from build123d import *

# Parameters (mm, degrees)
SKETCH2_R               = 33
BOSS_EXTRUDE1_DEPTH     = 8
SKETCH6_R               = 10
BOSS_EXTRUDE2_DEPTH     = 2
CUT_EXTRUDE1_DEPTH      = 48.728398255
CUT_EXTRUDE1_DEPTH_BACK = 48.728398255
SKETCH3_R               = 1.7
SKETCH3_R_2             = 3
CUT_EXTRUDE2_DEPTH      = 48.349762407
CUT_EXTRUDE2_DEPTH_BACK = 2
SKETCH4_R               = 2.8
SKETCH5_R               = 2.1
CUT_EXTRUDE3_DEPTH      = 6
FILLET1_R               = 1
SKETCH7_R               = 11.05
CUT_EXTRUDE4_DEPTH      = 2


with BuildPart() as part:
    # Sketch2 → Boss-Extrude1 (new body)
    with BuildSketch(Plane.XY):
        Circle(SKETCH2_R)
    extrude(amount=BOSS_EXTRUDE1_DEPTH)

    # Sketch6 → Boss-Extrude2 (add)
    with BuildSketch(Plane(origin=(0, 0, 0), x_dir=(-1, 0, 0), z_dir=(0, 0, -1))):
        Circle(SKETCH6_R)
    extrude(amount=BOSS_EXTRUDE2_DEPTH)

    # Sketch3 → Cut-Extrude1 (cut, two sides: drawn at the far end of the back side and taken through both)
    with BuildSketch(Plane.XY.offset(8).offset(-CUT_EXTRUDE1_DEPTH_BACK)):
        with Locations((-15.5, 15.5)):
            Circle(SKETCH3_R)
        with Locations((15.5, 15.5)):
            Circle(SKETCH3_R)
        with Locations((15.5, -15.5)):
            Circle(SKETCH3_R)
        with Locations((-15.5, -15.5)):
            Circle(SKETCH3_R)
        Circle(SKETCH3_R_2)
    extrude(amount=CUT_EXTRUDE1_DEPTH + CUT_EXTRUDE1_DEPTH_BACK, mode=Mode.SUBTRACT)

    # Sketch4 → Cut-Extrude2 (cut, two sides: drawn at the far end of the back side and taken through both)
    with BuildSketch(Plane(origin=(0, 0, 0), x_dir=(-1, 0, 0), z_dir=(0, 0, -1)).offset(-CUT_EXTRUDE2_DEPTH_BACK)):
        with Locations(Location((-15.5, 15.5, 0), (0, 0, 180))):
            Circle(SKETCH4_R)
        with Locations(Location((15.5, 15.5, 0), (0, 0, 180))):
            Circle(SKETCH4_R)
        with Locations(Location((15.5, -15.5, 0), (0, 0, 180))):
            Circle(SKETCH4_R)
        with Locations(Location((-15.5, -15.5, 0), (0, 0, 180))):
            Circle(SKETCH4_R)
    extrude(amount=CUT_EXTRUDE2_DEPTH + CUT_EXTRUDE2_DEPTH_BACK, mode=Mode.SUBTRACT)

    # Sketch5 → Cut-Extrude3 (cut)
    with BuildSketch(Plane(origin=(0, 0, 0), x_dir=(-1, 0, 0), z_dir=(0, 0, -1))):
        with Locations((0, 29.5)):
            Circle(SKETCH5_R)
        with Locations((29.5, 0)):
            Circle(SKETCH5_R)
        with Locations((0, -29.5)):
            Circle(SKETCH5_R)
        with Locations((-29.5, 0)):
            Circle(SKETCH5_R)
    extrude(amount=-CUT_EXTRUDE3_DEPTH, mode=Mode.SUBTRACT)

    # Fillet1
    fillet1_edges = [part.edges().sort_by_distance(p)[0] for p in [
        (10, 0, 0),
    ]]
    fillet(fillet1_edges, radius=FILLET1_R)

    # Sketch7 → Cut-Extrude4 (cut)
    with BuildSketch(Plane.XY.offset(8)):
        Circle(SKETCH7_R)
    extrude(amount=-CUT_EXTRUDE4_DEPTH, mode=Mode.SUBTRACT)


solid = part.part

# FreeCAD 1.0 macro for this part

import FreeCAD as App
import Part
import Sketcher


def edges_at(feature, points):
    """Names of the edges that pass closest to the given points."""
    edges = feature.Shape.Edges
    near = lambda p: min(range(len(edges)), key=lambda i: edges[i].distToShape(Part.Vertex(*p))[0])
    return sorted({f"Edge{near(p) + 1}" for p in points})

doc = App.newDocument("Part")
body = doc.addObject("PartDesign::Body", "Body")

sketch1 = body.newObject("Sketcher::SketchObject", "Sketch")
sketch1.AttachmentSupport = (doc.getObject("XY_Plane"), [""])
sketch1.MapMode = "FlatFace"
sketch1.addGeometry(Part.Circle(App.Vector(0, 0, 0), App.Vector(0, 0, 1), 33), False)
sketch1.addConstraint([
    Sketcher.Constraint("Coincident", 0, 3, -1, 1),
    Sketcher.Constraint("Diameter", 0, 66.0),
])
pad1 = body.newObject("PartDesign::Pad", "Pad")
pad1.Profile = sketch1
pad1.Length = 8

sketch2 = body.newObject("Sketcher::SketchObject", "Sketch001")
sketch2.AttachmentSupport = (doc.getObject("XY_Plane"), [""])
sketch2.MapMode = "FlatFace"
sketch2.addGeometry(Part.Circle(App.Vector(0, 0, 0), App.Vector(0, 0, 1), 10), False)
sketch2.addConstraint([
    Sketcher.Constraint("Coincident", 0, 3, -1, 1),
    Sketcher.Constraint("Diameter", 0, 20.0),
])
pad2 = body.newObject("PartDesign::Pad", "Pad001")
pad2.Profile = sketch2
pad2.Length = 2
pad2.Reversed = True

sketch3 = body.newObject("Sketcher::SketchObject", "Sketch002")
sketch3.AttachmentSupport = (doc.getObject("XY_Plane"), [""])
sketch3.MapMode = "FlatFace"
sketch3.AttachmentOffset = App.Placement(App.Vector(0, 0, 8), App.Rotation())
sketch3.addGeometry([
    Part.Circle(App.Vector(-15.5, 15.5, 0), App.Vector(0, 0, 1), 1.7),
    Part.Circle(App.Vector(15.5, 15.5, 0), App.Vector(0, 0, 1), 1.7),
    Part.Circle(App.Vector(15.5, -15.5, 0), App.Vector(0, 0, 1), 1.7),
    Part.Circle(App.Vector(-15.5, -15.5, 0), App.Vector(0, 0, 1), 1.7),
    Part.Circle(App.Vector(0, 0, 0), App.Vector(0, 0, 1), 3),
], False)
sketch3.addConstraint([
    Sketcher.Constraint("Coincident", 4, 3, -1, 1),
    Sketcher.Constraint("Equal", 0, 1),
    Sketcher.Constraint("Equal", 1, 2),
    Sketcher.Constraint("Equal", 2, 3),
    Sketcher.Constraint("Symmetric", 0, 3, 2, 3, -1, 1),
    Sketcher.Constraint("Symmetric", 1, 3, 3, 3, -1, 1),
    Sketcher.Constraint("Symmetric", 0, 3, 1, 3, -2),
    Sketcher.Constraint("Diameter", 4, 6.0),
    Sketcher.Constraint("Diameter", 0, 3.4),
    Sketcher.Constraint("DistanceX", 0, 3, 1, 3, 31.0),
    Sketcher.Constraint("DistanceY", 2, 3, 1, 3, 31.0),
])
pocket1 = body.newObject("PartDesign::Pocket", "Pocket")
pocket1.Profile = sketch3
pocket1.Type = "ThroughAll"
pocket1.Midplane = True

sketch4 = body.newObject("Sketcher::SketchObject", "Sketch003")
sketch4.AttachmentSupport = (doc.getObject("XY_Plane"), [""])
sketch4.MapMode = "FlatFace"
sketch4.addGeometry([
    Part.Circle(App.Vector(15.5, 15.5, 0), App.Vector(0, 0, 1), 2.8),
    Part.Circle(App.Vector(-15.5, 15.5, 0), App.Vector(0, 0, 1), 2.8),
    Part.Circle(App.Vector(-15.5, -15.5, 0), App.Vector(0, 0, 1), 2.8),
    Part.Circle(App.Vector(15.5, -15.5, 0), App.Vector(0, 0, 1), 2.8),
], False)
sketch4.addConstraint([
    Sketcher.Constraint("Equal", 0, 1),
    Sketcher.Constraint("Equal", 1, 2),
    Sketcher.Constraint("Equal", 2, 3),
    Sketcher.Constraint("Symmetric", 0, 3, 2, 3, -1, 1),
    Sketcher.Constraint("Symmetric", 1, 3, 3, 3, -1, 1),
    Sketcher.Constraint("Symmetric", 0, 3, 1, 3, -2),
    Sketcher.Constraint("Diameter", 0, 5.6),
    Sketcher.Constraint("DistanceX", 1, 3, 0, 3, 31.0),
    Sketcher.Constraint("DistanceY", 2, 3, 1, 3, 31.0),
])
pocket2 = body.newObject("PartDesign::Pocket", "Pocket001")
pocket2.Profile = sketch4
pocket2.Type = "TwoLengths"
pocket2.Length = 48.349762
pocket2.Length2 = 2

sketch5 = body.newObject("Sketcher::SketchObject", "Sketch004")
sketch5.AttachmentSupport = (doc.getObject("XY_Plane"), [""])
sketch5.MapMode = "FlatFace"
sketch5.addGeometry([
    Part.Circle(App.Vector(0, 29.5, 0), App.Vector(0, 0, 1), 2.1),
    Part.Circle(App.Vector(-29.5, 0, 0), App.Vector(0, 0, 1), 2.1),
    Part.Circle(App.Vector(0, -29.5, 0), App.Vector(0, 0, 1), 2.1),
    Part.Circle(App.Vector(29.5, 0, 0), App.Vector(0, 0, 1), 2.1),
], False)
sketch5.addConstraint([
    Sketcher.Constraint("Equal", 0, 1),
    Sketcher.Constraint("Equal", 1, 2),
    Sketcher.Constraint("Equal", 2, 3),
    Sketcher.Constraint("Symmetric", 0, 3, 2, 3, -1, 1),
    Sketcher.Constraint("Symmetric", 1, 3, 3, 3, -1, 1),
    Sketcher.Constraint("PointOnObject", 0, 3, -2),
    Sketcher.Constraint("PointOnObject", 1, 3, -1),
    Sketcher.Constraint("Diameter", 0, 4.2),
    Sketcher.Constraint("DistanceY", 2, 3, 0, 3, 59.0),
    Sketcher.Constraint("DistanceX", 1, 3, 3, 3, 59.0),
])
pocket3 = body.newObject("PartDesign::Pocket", "Pocket002")
pocket3.Profile = sketch5
pocket3.Length = 6
pocket3.Reversed = True
doc.recompute()

fillet = body.newObject("PartDesign::Fillet", "Fillet")
fillet.Base = (pocket3, edges_at(pocket3, [(10, 0, 0)]))
fillet.Radius = 1

sketch6 = body.newObject("Sketcher::SketchObject", "Sketch005")
sketch6.AttachmentSupport = (doc.getObject("XY_Plane"), [""])
sketch6.MapMode = "FlatFace"
sketch6.AttachmentOffset = App.Placement(App.Vector(0, 0, 8), App.Rotation())
sketch6.addGeometry(Part.Circle(App.Vector(0, 0, 0), App.Vector(0, 0, 1), 11), False)
sketch6.addConstraint([
    Sketcher.Constraint("Coincident", 0, 3, -1, 1),
    Sketcher.Constraint("Diameter", 0, 22.1),
])
pocket4 = body.newObject("PartDesign::Pocket", "Pocket003")
pocket4.Profile = sketch6
pocket4.Length = 2

doc.recompute()
